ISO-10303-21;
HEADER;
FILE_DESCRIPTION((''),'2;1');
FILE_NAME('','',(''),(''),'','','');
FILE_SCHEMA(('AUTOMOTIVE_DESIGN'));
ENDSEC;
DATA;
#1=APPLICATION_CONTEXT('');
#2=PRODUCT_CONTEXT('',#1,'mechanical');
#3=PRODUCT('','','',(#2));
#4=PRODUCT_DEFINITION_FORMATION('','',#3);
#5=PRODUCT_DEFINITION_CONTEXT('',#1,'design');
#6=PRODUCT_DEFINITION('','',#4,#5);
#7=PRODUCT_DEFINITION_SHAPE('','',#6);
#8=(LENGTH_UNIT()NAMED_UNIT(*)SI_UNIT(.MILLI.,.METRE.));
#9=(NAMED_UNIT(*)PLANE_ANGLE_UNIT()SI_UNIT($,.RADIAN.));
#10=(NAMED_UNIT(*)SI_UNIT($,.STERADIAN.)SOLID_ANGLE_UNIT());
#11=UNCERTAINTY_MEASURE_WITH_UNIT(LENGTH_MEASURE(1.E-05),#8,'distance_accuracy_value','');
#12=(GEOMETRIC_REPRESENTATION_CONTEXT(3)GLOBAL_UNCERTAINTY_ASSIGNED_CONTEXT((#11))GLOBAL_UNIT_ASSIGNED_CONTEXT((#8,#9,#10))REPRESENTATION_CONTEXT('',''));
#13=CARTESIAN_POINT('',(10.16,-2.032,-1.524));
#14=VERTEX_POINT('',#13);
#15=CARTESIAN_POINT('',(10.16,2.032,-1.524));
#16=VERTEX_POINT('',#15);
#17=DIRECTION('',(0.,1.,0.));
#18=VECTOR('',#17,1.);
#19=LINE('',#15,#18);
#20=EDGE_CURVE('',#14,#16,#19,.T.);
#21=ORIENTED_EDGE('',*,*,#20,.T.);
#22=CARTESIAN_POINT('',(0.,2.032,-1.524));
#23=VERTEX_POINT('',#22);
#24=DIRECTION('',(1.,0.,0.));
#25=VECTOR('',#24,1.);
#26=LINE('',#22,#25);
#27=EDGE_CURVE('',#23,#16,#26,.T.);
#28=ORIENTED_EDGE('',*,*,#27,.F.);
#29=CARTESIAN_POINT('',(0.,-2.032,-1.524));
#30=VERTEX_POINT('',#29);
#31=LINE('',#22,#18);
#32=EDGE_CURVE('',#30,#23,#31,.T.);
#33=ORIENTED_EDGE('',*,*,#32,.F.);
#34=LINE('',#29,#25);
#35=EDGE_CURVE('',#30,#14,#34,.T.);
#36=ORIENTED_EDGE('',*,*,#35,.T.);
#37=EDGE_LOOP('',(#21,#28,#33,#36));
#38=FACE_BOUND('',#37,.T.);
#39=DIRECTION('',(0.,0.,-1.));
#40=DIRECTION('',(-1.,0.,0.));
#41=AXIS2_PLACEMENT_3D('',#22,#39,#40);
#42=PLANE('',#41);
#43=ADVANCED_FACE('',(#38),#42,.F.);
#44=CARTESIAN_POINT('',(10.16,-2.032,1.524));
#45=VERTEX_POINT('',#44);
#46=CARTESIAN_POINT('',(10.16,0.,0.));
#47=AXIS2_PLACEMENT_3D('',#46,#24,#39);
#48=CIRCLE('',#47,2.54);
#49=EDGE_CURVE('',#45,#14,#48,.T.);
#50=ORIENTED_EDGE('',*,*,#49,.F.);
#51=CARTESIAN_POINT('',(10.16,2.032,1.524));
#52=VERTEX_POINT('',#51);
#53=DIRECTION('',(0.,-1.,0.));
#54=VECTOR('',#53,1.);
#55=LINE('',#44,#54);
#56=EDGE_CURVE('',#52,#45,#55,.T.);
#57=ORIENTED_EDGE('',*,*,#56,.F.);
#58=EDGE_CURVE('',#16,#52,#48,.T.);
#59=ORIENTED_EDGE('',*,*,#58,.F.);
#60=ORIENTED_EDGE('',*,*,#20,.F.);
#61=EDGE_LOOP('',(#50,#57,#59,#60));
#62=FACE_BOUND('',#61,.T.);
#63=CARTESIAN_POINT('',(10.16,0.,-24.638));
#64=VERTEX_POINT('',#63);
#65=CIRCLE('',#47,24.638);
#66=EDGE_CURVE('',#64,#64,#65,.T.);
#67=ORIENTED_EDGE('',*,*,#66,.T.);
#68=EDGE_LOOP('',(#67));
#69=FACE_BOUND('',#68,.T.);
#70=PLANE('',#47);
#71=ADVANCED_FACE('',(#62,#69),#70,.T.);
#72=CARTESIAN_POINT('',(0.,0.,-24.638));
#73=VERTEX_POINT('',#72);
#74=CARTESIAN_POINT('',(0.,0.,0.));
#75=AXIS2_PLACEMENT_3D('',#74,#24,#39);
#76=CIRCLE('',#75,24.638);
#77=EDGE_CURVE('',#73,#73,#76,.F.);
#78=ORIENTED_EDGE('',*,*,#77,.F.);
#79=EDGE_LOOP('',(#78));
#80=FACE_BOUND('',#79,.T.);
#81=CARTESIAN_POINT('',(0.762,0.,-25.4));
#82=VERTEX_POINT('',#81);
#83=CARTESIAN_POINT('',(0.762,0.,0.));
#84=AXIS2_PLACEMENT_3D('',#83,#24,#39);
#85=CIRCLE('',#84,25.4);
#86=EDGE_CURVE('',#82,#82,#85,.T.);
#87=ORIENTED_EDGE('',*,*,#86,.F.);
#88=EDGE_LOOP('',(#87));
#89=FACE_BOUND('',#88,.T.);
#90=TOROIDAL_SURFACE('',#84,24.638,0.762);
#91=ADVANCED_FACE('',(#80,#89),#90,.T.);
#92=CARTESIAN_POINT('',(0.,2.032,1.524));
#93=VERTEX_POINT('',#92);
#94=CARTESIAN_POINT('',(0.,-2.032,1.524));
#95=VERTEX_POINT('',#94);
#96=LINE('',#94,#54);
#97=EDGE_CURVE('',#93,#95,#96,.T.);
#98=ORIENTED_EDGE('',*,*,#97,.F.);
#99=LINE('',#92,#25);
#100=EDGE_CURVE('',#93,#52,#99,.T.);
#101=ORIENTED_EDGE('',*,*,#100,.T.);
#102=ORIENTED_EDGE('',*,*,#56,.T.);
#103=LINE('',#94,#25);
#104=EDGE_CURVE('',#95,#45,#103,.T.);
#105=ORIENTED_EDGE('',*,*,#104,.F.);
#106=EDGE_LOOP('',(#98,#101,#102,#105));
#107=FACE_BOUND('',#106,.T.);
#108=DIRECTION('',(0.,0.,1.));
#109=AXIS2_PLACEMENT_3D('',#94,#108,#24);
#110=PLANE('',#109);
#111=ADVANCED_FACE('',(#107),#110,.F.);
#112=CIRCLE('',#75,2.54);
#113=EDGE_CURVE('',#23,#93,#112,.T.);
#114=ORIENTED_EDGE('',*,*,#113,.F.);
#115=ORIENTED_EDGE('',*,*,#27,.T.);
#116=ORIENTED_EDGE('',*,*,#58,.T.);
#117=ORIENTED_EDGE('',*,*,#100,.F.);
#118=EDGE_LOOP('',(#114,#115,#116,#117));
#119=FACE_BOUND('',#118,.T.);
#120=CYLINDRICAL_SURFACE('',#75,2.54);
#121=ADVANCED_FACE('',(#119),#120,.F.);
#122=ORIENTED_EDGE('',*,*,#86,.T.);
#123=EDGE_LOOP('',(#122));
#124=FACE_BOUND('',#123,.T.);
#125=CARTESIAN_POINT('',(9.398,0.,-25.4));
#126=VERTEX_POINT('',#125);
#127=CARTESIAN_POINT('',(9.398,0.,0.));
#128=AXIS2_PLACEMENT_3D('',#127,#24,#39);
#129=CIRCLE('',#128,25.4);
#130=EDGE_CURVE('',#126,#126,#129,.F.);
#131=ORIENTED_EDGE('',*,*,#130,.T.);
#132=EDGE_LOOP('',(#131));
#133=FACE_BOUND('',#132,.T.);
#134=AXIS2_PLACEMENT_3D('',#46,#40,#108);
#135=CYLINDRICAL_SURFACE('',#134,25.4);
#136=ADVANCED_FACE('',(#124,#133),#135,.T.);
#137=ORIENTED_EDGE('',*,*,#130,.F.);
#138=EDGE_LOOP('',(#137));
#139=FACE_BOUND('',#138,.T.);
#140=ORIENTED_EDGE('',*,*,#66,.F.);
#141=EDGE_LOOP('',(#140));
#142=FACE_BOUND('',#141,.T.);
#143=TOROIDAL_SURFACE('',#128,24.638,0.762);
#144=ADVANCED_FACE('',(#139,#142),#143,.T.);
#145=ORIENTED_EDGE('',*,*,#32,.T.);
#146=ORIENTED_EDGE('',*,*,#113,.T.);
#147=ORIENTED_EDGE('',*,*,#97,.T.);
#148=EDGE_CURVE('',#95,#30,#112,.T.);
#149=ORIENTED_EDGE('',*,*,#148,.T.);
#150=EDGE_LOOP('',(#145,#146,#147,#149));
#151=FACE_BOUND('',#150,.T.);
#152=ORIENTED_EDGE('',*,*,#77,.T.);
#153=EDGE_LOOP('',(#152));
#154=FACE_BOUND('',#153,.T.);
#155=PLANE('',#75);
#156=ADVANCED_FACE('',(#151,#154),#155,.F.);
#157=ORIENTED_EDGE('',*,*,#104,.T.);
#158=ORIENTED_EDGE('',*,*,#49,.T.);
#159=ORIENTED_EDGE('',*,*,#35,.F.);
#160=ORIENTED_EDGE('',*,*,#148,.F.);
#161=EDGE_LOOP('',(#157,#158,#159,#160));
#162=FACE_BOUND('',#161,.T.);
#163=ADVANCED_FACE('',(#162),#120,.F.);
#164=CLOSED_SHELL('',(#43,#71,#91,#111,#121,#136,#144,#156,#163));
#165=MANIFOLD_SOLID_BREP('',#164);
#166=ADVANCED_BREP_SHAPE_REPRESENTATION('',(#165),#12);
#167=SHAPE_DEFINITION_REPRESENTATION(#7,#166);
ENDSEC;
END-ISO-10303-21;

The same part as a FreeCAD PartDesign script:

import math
import FreeCAD as App
import Part
import Sketcher
Q = App.Units.Quantity


def edges_at(feature, points):
    """Names of the edges that pass closest to the given points."""
    edges = feature.Shape.Edges
    near = lambda p: min(range(len(edges)), key=lambda i: edges[i].distToShape(Part.Vertex(*p))[0])
    return sorted({f"Edge{near(p) + 1}" for p in points})

doc = App.newDocument("Part")
params = doc.addObject("Spreadsheet::Sheet", "Params")
for row, (alias, value) in enumerate([
    ("sketch1_diameter", "2 in"),
    ("pad1_length", "0.4 in"),
    ("fillet_radius", "0.03 in"),
    ("sketch2_radius", "0.1 in"),
    ("sketch2_width", "0.16 in"),
], start=1):
    params.set(f"A{row}", alias)
    params.set(f"B{row}", "=" + value)
    params.setAlias(f"B{row}", alias)

body = doc.addObject("PartDesign::Body", "Body")

sketch1 = body.newObject("Sketcher::SketchObject", "Sketch")
sketch1.AttachmentSupport = (doc.getObject("YZ_Plane"), [""])
sketch1.MapMode = "FlatFace"
sketch1.addGeometry(Part.Circle(App.Vector(0, 0, 0), App.Vector(0, 0, 1), 25), False)
sketch1.addConstraint([
    Sketcher.Constraint("Coincident", 0, 3, -1, 1),
    Sketcher.Constraint("Diameter", 0, Q("2 in")),
])
sketch1.setExpression("Constraints[1]", "Params.sketch1_diameter")
pad1 = body.newObject("PartDesign::Pad", "Pad")
pad1.Profile = sketch1
pad1.setExpression("Length", "Params.pad1_length")
doc.recompute()

fillet = body.newObject("PartDesign::Fillet", "Fillet")
fillet.Base = (pad1, edges_at(pad1, [(0, 0, 25.4), (10.16, 0, 25.4)]))
fillet.setExpression("Radius", "Params.fillet_radius")

sketch2 = body.newObject("Sketcher::SketchObject", "Sketch001")
sketch2.AttachmentSupport = (doc.getObject("YZ_Plane"), [""])
sketch2.MapMode = "FlatFace"
sketch2.AttachmentOffset = App.Placement(App.Vector(0, 0, 0.4 * 25.4), App.Rotation())
sketch2.addGeometry([
    Part.LineSegment(App.Vector(2, 1.5, 0), App.Vector(-2, 1.5, 0)),
    Part.ArcOfCircle(Part.Circle(App.Vector(0, 0, 0), App.Vector(0, 0, 1), 2.5), math.radians(143), math.radians(217)),
    Part.LineSegment(App.Vector(-2, -1.5, 0), App.Vector(2, -1.5, 0)),
    Part.ArcOfCircle(Part.Circle(App.Vector(0, 0, 0), App.Vector(0, 0, 1), 2.5), math.radians(-37), math.radians(37)),
], False)
sketch2.addConstraint([
    Sketcher.Constraint("Coincident", 0, 2, 1, 1),
    Sketcher.Constraint("Coincident", 1, 2, 2, 1),
    Sketcher.Constraint("Coincident", 2, 2, 3, 1),
    Sketcher.Constraint("Coincident", 3, 2, 0, 1),
    Sketcher.Constraint("Horizontal", 0),
    Sketcher.Constraint("Horizontal", 2),
    Sketcher.Constraint("Coincident", 1, 3, -1, 1),
    Sketcher.Constraint("Coincident", 3, 3, -1, 1),
    Sketcher.Constraint("Equal", 1, 3),
    Sketcher.Constraint("Vertical", 0, 2, 1, 2),
    Sketcher.Constraint("Radius", 1, Q("0.1 in")),
    Sketcher.Constraint("DistanceX", 0, 2, 0, 1, Q("0.16 in")),
])
sketch2.setExpression("Constraints[10]", "Params.sketch2_radius")
sketch2.setExpression("Constraints[11]", "Params.sketch2_width")
pocket1 = body.newObject("PartDesign::Pocket", "Pocket")
pocket1.Profile = sketch2
pocket1.Type = "ThroughAll"

doc.recompute()
